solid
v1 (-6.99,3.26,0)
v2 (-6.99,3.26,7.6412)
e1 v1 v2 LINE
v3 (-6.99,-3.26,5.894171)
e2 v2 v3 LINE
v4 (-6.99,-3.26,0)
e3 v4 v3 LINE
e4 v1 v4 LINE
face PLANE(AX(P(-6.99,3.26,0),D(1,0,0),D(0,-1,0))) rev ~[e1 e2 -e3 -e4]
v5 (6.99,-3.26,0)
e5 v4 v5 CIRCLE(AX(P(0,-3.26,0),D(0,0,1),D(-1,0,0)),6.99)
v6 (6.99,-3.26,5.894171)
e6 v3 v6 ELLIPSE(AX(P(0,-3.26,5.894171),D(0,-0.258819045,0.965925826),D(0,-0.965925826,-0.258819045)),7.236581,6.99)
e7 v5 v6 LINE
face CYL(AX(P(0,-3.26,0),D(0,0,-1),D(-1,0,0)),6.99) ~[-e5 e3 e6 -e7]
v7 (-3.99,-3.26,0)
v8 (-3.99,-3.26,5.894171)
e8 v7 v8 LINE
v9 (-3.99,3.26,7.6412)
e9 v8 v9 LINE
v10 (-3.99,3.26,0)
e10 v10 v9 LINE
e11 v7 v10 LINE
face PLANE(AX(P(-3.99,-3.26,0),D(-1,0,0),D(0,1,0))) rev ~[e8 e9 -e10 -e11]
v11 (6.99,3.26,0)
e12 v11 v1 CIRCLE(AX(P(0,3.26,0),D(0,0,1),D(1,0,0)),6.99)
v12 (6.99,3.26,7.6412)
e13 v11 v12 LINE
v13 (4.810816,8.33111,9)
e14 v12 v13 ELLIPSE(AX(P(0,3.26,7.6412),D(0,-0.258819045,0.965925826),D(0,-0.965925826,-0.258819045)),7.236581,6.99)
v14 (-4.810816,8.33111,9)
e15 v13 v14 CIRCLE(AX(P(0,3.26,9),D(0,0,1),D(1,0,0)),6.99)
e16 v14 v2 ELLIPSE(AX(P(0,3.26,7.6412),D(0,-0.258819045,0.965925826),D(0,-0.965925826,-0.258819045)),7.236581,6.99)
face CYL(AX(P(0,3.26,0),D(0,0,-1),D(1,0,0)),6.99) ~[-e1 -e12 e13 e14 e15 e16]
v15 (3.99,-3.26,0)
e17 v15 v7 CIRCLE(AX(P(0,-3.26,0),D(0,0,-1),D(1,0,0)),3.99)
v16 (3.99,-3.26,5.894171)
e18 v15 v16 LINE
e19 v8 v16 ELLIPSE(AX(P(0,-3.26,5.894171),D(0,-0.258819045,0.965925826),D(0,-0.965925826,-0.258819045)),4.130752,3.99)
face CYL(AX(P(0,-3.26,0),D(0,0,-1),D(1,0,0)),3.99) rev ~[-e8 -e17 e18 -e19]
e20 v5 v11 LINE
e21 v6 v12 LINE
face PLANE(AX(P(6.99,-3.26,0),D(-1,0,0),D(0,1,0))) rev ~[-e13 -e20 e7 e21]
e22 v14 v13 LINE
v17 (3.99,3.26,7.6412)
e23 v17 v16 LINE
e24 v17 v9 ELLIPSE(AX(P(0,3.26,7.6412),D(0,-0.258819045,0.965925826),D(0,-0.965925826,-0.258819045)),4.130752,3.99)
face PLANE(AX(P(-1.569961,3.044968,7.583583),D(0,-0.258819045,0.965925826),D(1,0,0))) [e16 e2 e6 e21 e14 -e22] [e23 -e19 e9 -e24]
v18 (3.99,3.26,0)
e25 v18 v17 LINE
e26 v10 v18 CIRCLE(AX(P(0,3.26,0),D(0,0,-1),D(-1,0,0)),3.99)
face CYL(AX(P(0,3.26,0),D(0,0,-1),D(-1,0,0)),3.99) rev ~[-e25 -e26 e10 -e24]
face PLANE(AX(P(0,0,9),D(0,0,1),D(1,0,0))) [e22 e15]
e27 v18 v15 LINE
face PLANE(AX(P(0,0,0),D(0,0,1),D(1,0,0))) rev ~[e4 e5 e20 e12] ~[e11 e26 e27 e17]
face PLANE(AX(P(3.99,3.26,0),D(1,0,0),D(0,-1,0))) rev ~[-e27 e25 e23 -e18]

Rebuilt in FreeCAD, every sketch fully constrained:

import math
import FreeCAD as App
import Part
import Sketcher

V = App.Vector
Q = App.Units.Quantity

doc = App.newDocument("Part")
params = doc.addObject("Spreadsheet::Sheet", "Params")
for row, (alias, value) in enumerate([
    ("sketch1_radius", "6.99 mm"),
    ("sketch1_radius2", "3.99 mm"),
    ("sketch1_height", "6.52 mm"),
    ("pad1_length", "9 mm"),
    ("pocket1_length", "13 mm"),
], start=1):
    params.set(f"A{row}", alias)
    params.set(f"B{row}", "=" + value)
    params.setAlias(f"B{row}", alias)

body = doc.addObject("PartDesign::Body", "Body")

sketch1 = body.newObject("Sketcher::SketchObject", "Sketch")
sketch1.AttachmentSupport = (doc.getObject("XY_Plane"), [""])
sketch1.MapMode = "FlatFace"
sketch1.addGeometry(Part.ArcOfCircle(Part.Circle(V(0, -3.26, 0), V(0, 0, 1), 6.99), math.radians(180), math.radians(360)), False)
sketch1.addGeometry(Part.LineSegment(V(6.99, -3.26, 0), V(6.99, 3.26, 0)), False)
sketch1.addGeometry(Part.ArcOfCircle(Part.Circle(V(0, 3.26, 0), V(0, 0, 1), 6.99), math.radians(0), math.radians(180)), False)
sketch1.addGeometry(Part.LineSegment(V(-6.99, 3.26, 0), V(-6.99, -3.26, 0)), False)
sketch1.addGeometry(Part.LineSegment(V(-3.99, -3.26, 0), V(-3.99, 3.26, 0)), False)
sketch1.addGeometry(Part.ArcOfCircle(Part.Circle(V(0, 3.26, 0), V(0, 0, 1), 3.99), math.radians(0), math.radians(180)), False)
sketch1.addGeometry(Part.LineSegment(V(3.99, 3.26, 0), V(3.99, -3.26, 0)), False)
sketch1.addGeometry(Part.ArcOfCircle(Part.Circle(V(0, -3.26, 0), V(0, 0, 1), 3.99), math.radians(180), math.radians(360)), False)
sketch1.addConstraint(Sketcher.Constraint("Tangent", 0, 2, 1, 1))
sketch1.addConstraint(Sketcher.Constraint("Tangent", 1, 2, 2, 1))
sketch1.addConstraint(Sketcher.Constraint("Tangent", 2, 2, 3, 1))
sketch1.addConstraint(Sketcher.Constraint("Tangent", 3, 2, 0, 1))
sketch1.addConstraint(Sketcher.Constraint("Tangent", 4, 2, 5, 2))
sketch1.addConstraint(Sketcher.Constraint("Tangent", 5, 1, 6, 1))
sketch1.addConstraint(Sketcher.Constraint("Tangent", 6, 2, 7, 2))
sketch1.addConstraint(Sketcher.Constraint("Tangent", 7, 1, 4, 1))
sketch1.addConstraint(Sketcher.Constraint("Vertical", 1))
sketch1.addConstraint(Sketcher.Constraint("Vertical", 3))
sketch1.addConstraint(Sketcher.Constraint("Vertical", 4))
sketch1.addConstraint(Sketcher.Constraint("Vertical", 6))
sketch1.addConstraint(Sketcher.Constraint("Coincident", 5, 3, 2, 3))
sketch1.addConstraint(Sketcher.Constraint("Symmetric", 0, 3, 2, 3, -1, 1))
sketch1.addConstraint(Sketcher.Constraint("Horizontal", 7, 3, 0, 2))
sketch1.addConstraint(Sketcher.Constraint("Radius", 0, Q("6.99 mm")))
sketch1.addConstraint(Sketcher.Constraint("Radius", 5, Q("3.99 mm")))
sketch1.addConstraint(Sketcher.Constraint("DistanceY", 1, 1, 1, 2, Q("6.52 mm")))
sketch1.setExpression("Constraints[15]", "Params.sketch1_radius")
sketch1.setExpression("Constraints[16]", "Params.sketch1_radius2")
sketch1.setExpression("Constraints[17]", "Params.sketch1_height")
pad1 = body.newObject("PartDesign::Pad", "Pad")
pad1.Profile = sketch1
pad1.setExpression("Length", "Params.pad1_length")

sketch2 = body.newObject("Sketcher::SketchObject", "Sketch001")
sketch2.Placement = App.Placement(V(0, -5.056569, 18.871373), App.Rotation(V(1, 0, 0), V(0, 0.965925826, 0.258819045), V(0, -0.258819045, 0.965925826), "ZXY"))
sketch2.addGeometry(Part.LineSegment(V(-23.00542, 21.27503, 0), V(-23.00542, -11.467053, 0)), False)
sketch2.addGeometry(Part.LineSegment(V(-23.00542, -11.467053, 0), V(19.865498, -11.467053, 0)), False)
sketch2.addGeometry(Part.LineSegment(V(19.865498, -11.467053, 0), V(19.865498, 21.27503, 0)), False)
sketch2.addGeometry(Part.LineSegment(V(19.865498, 21.27503, 0), V(-23.00542, 21.27503, 0)), False)
sketch2.addConstraint(Sketcher.Constraint("Coincident", 0, 2, 1, 1))
sketch2.addConstraint(Sketcher.Constraint("Coincident", 1, 2, 2, 1))
sketch2.addConstraint(Sketcher.Constraint("Coincident", 2, 2, 3, 1))
sketch2.addConstraint(Sketcher.Constraint("Coincident", 3, 2, 0, 1))
sketch2.addConstraint(Sketcher.Constraint("Vertical", 0))
sketch2.addConstraint(Sketcher.Constraint("Horizontal", 1))
sketch2.addConstraint(Sketcher.Constraint("Vertical", 2))
sketch2.addConstraint(Sketcher.Constraint("Horizontal", 3))
sketch2.addConstraint(Sketcher.Constraint("DistanceX", 1, 1, 1, 2, Q("42.870918 mm")))
sketch2.addConstraint(Sketcher.Constraint("DistanceY", 0, 2, 0, 1, Q("32.742083 mm")))
sketch2.addConstraint(Sketcher.Constraint("DistanceX", 0, 2, -1, 1, Q("23.00542 mm")))
sketch2.addConstraint(Sketcher.Constraint("DistanceY", -1, 1, 2, 2, Q("21.27503 mm")))
pocket1 = body.newObject("PartDesign::Pocket", "Pocket")
pocket1.Profile = sketch2
pocket1.setExpression("Length", "Params.pocket1_length")

doc.recompute()
